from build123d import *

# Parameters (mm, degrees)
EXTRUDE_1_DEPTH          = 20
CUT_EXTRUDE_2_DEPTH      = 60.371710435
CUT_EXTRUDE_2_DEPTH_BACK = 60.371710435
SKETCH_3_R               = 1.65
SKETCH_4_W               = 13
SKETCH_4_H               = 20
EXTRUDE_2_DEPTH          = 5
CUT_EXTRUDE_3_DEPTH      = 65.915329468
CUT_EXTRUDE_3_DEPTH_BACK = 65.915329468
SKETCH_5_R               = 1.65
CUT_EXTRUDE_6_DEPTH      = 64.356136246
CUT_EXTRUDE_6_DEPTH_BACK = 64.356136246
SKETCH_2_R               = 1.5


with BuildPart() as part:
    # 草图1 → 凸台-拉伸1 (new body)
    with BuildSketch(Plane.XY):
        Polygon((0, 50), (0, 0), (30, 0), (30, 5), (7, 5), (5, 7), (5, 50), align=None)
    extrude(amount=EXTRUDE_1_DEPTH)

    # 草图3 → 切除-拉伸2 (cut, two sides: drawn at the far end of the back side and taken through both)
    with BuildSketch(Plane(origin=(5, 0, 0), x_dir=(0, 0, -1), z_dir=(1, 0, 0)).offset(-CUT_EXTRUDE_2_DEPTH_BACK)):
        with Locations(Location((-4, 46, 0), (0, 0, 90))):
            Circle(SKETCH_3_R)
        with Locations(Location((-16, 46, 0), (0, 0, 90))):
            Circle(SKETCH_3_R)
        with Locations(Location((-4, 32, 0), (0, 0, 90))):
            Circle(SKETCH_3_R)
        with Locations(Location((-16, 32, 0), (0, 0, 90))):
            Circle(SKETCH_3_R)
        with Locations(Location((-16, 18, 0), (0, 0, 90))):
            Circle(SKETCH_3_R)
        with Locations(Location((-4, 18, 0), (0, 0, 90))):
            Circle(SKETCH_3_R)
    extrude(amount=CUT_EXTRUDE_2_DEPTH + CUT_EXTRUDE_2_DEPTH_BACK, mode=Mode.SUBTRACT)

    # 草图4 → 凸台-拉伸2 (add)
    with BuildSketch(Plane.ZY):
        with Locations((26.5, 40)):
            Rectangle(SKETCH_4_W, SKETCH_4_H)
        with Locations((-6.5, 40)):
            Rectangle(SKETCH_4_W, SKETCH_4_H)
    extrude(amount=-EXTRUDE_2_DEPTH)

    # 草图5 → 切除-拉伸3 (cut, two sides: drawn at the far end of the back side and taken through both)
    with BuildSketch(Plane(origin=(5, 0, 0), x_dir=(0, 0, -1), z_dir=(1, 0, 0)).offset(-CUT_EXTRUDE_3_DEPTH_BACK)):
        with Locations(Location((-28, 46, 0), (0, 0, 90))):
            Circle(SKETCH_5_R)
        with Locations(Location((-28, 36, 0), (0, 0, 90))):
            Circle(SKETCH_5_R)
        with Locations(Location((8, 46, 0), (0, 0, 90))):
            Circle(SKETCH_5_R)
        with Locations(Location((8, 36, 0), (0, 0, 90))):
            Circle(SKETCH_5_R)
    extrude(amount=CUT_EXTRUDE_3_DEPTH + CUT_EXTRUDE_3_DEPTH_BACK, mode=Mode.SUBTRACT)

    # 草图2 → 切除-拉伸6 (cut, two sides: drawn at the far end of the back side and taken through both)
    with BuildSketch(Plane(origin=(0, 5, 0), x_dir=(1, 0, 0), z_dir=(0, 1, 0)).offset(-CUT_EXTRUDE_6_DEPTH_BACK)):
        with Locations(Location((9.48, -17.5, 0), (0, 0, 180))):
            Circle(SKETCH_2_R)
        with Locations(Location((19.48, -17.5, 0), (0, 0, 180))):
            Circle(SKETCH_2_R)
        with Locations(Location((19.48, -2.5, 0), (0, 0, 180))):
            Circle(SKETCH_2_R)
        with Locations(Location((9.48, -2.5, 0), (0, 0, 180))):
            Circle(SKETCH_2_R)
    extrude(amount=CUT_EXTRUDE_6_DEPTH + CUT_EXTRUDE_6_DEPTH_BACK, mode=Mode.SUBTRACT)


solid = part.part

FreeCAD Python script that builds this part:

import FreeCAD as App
import Part
import Sketcher
from FreeCAD import Vector
Q = App.Units.Quantity


def add_polygon(sketch, points):
    """Adds a closed chain of lines whose ends are joined by coincident constraints."""
    first, n = sketch.GeometryCount, len(points)
    for a, b in zip(points, points[1:] + points[:1]):
        sketch.addGeometry(Part.LineSegment(App.Vector(*a, 0), App.Vector(*b, 0)), False)
    for i in range(n):
        sketch.addConstraint(Sketcher.Constraint("Coincident", first + i, 2, first + (i + 1) % n, 1))

doc = App.newDocument("Part")
params = doc.addObject("Spreadsheet::Sheet", "Params")
for row, (alias, value) in enumerate([
    ("sketch1_width", "30 mm"),
    ("sketch1_width2", "23 mm"),
    ("sketch1_width3", "5 mm"),
    ("sketch1_height", "50 mm"),
    ("sketch1_height2", "43 mm"),
    ("pad1_length", "20 mm"),
    ("sketch2_diameter", "3.3 mm"),
    ("sketch3_width", "20 mm"),
    ("sketch3_height", "13 mm"),
    ("pad2_length", "5 mm"),
    ("sketch4_diameter", "3.3 mm"),
    ("sketch5_diameter", "3 mm"),
], start=1):
    params.set(f"A{row}", alias)
    params.set(f"B{row}", "=" + value)
    params.setAlias(f"B{row}", alias)

body = doc.addObject("PartDesign::Body", "Body")

# Sketch on XY plane
sketch1 = body.newObject("Sketcher::SketchObject", "Sketch")
sketch1.AttachmentSupport = (doc.getObject("XY_Plane"), [""])
sketch1.MapMode = "FlatFace"
add_polygon(sketch1, [(0, 50), (0, 0), (30, 0), (30, 5), (7, 5), (5, 7), (5, 50)])  # lines 0-6
sketch1.addConstraint([
    Sketcher.Constraint("Vertical", 0),
    Sketcher.Constraint("Horizontal", 1),
    Sketcher.Constraint("Vertical", 2),
    Sketcher.Constraint("Horizontal", 3),
    Sketcher.Constraint("Vertical", 5),
    Sketcher.Constraint("Horizontal", 6),
    Sketcher.Constraint("Coincident", 0, 2, -1, 1),
    Sketcher.Constraint("Equal", 6, 2),
    Sketcher.Constraint("DistanceX", 1, 1, 1, 2, Q("30 mm")),
    Sketcher.Constraint("DistanceX", 3, 2, 3, 1, Q("23 mm")),
    Sketcher.Constraint("DistanceX", 6, 2, 6, 1, Q("5 mm")),
    Sketcher.Constraint("DistanceY", 0, 2, 0, 1, Q("50 mm")),
    Sketcher.Constraint("DistanceY", 5, 1, 5, 2, Q("43 mm")),
])
sketch1.setExpression("Constraints[15]", "Params.sketch1_width")
sketch1.setExpression("Constraints[16]", "Params.sketch1_width2")
sketch1.setExpression("Constraints[17]", "Params.sketch1_width3")
sketch1.setExpression("Constraints[18]", "Params.sketch1_height")
sketch1.setExpression("Constraints[19]", "Params.sketch1_height2")
pad1 = body.newObject("PartDesign::Pad", "Pad")
pad1.Profile = sketch1
pad1.setExpression("Length", "Params.pad1_length")

# Sketch on YZ plane
sketch2 = body.newObject("Sketcher::SketchObject", "Sketch001")
sketch2.AttachmentSupport = (doc.getObject("YZ_Plane"), [""])
sketch2.MapMode = "FlatFace"
sketch2.AttachmentOffset = App.Placement(Vector(0, 0, 5), App.Rotation())
sketch2.addGeometry([
    Part.Circle(Vector(46, 4, 0), Vector(0, 0, 1), 1.6),  # 0
    Part.Circle(Vector(46, 16, 0), Vector(0, 0, 1), 1.6),  # 1
    Part.Circle(Vector(32, 4, 0), Vector(0, 0, 1), 1.6),  # 2
    Part.Circle(Vector(32, 16, 0), Vector(0, 0, 1), 1.6),  # 3
    Part.Circle(Vector(18, 16, 0), Vector(0, 0, 1), 1.6),  # 4
    Part.Circle(Vector(18, 4, 0), Vector(0, 0, 1), 1.6),  # 5
], False)
sketch2.addConstraint([
    Sketcher.Constraint("Equal", 0, 1),
    Sketcher.Constraint("Equal", 1, 2),
    Sketcher.Constraint("Equal", 2, 3),
    Sketcher.Constraint("Equal", 3, 4),
    Sketcher.Constraint("Equal", 4, 5),
    Sketcher.Constraint("Horizontal", 0, 3, 2, 3),
    Sketcher.Constraint("Horizontal", 1, 3, 3, 3),
    Sketcher.Constraint("Horizontal", 3, 3, 4, 3),
    Sketcher.Constraint("Horizontal", 2, 3, 5, 3),
    Sketcher.Constraint("Vertical", 0, 3, 1, 3),
    Sketcher.Constraint("Vertical", 2, 3, 3, 3),
    Sketcher.Constraint("Vertical", 4, 3, 5, 3),
    Sketcher.Constraint("Diameter", 0, Q("3.3 mm")),
    Sketcher.Constraint("DistanceX", -1, 1, 0, 3, Q("46 mm")),
    Sketcher.Constraint("DistanceY", -1, 1, 0, 3, Q("4 mm")),
    Sketcher.Constraint("DistanceY", -1, 1, 1, 3, Q("16 mm")),
    Sketcher.Constraint("DistanceX", -1, 1, 2, 3, Q("32 mm")),
    Sketcher.Constraint("DistanceX", -1, 1, 4, 3, Q("18 mm")),
])
sketch2.setExpression("Constraints[12]", "Params.sketch2_diameter")
pocket1 = body.newObject("PartDesign::Pocket", "Pocket")
pocket1.Profile = sketch2
pocket1.Type = "ThroughAll"
pocket1.Midplane = True

# Sketch on YZ plane
sketch3 = body.newObject("Sketcher::SketchObject", "Sketch002")
sketch3.AttachmentSupport = (doc.getObject("YZ_Plane"), [""])
sketch3.MapMode = "FlatFace"
add_polygon(sketch3, [(50, 20), (30, 20), (30, 33), (50, 33)])  # lines 0-3
add_polygon(sketch3, [(50, -13), (30, -13), (30, 0), (50, 0)])  # lines 4-7
sketch3.addConstraint([
    Sketcher.Constraint("Horizontal", 0),
    Sketcher.Constraint("Vertical", 1),
    Sketcher.Constraint("Horizontal", 2),
    Sketcher.Constraint("Vertical", 3),
    Sketcher.Constraint("Horizontal", 4),
    Sketcher.Constraint("Vertical", 5),
    Sketcher.Constraint("Horizontal", 6),
    Sketcher.Constraint("Vertical", 7),
    Sketcher.Constraint("PointOnObject", 5, 2, -1),
    Sketcher.Constraint("Vertical", 1, 2, 4, 2),
    Sketcher.Constraint("Vertical", 3, 2, 6, 2),
    Sketcher.Constraint("Equal", 3, 5),
    Sketcher.Constraint("DistanceX", 0, 2, 0, 1, Q("20 mm")),
    Sketcher.Constraint("DistanceY", 1, 1, 1, 2, Q("13 mm")),
    Sketcher.Constraint("DistanceX", -1, 1, 0, 2, Q("30 mm")),
    Sketcher.Constraint("DistanceY", -1, 1, 0, 2, Q("20 mm")),
])
sketch3.setExpression("Constraints[20]", "Params.sketch3_width")
sketch3.setExpression("Constraints[21]", "Params.sketch3_height")
pad2 = body.newObject("PartDesign::Pad", "Pad001")
pad2.Profile = sketch3
pad2.setExpression("Length", "Params.pad2_length")

# Sketch on YZ plane
sketch4 = body.newObject("Sketcher::SketchObject", "Sketch003")
sketch4.AttachmentSupport = (doc.getObject("YZ_Plane"), [""])
sketch4.MapMode = "FlatFace"
sketch4.AttachmentOffset = App.Placement(Vector(0, 0, 5), App.Rotation())
sketch4.addGeometry([
    Part.Circle(Vector(46, 28, 0), Vector(0, 0, 1), 1.6),
    Part.Circle(Vector(36, 28, 0), Vector(0, 0, 1), 1.6),
    Part.Circle(Vector(46, -8, 0), Vector(0, 0, 1), 1.6),
    Part.Circle(Vector(36, -8, 0), Vector(0, 0, 1), 1.6),
], False)
sketch4.addConstraint([
    Sketcher.Constraint("Equal", 0, 1),
    Sketcher.Constraint("Equal", 1, 2),
    Sketcher.Constraint("Equal", 2, 3),
    Sketcher.Constraint("Horizontal", 0, 3, 1, 3),
    Sketcher.Constraint("Horizontal", 2, 3, 3, 3),
    Sketcher.Constraint("Vertical", 0, 3, 2, 3),
    Sketcher.Constraint("Vertical", 1, 3, 3, 3),
    Sketcher.Constraint("Diameter", 0, Q("3.3 mm")),
    Sketcher.Constraint("DistanceX", -1, 1, 0, 3, Q("46 mm")),
    Sketcher.Constraint("DistanceY", -1, 1, 0, 3, Q("28 mm")),
    Sketcher.Constraint("DistanceX", -1, 1, 1, 3, Q("36 mm")),
    Sketcher.Constraint("DistanceY", 2, 3, -1, 1, Q("8 mm")),
])
sketch4.setExpression("Constraints[7]", "Params.sketch4_diameter")
pocket2 = body.newObject("PartDesign::Pocket", "Pocket001")
pocket2.Profile = sketch4
pocket2.Type = "ThroughAll"
pocket2.Midplane = True

# Sketch on XZ plane
sketch5 = body.newObject("Sketcher::SketchObject", "Sketch004")
sketch5.AttachmentSupport = (doc.getObject("XZ_Plane"), [""])
sketch5.MapMode = "FlatFace"
sketch5.AttachmentOffset = App.Placement(Vector(0, 0, -5), App.Rotation())
sketch5.addGeometry([
    Part.Circle(Vector(9.5, 17.5, 0), Vector(0, 0, 1), 1.5),
    Part.Circle(Vector(19.5, 17.5, 0), Vector(0, 0, 1), 1.5),
    Part.Circle(Vector(19.5, 2.5, 0), Vector(0, 0, 1), 1.5),
    Part.Circle(Vector(9.5, 2.5, 0), Vector(0, 0, 1), 1.5),
], False)
sketch5.addConstraint([
    Sketcher.Constraint("Equal", 0, 1),
    Sketcher.Constraint("Equal", 1, 2),
    Sketcher.Constraint("Equal", 2, 3),
    Sketcher.Constraint("Horizontal", 0, 3, 1, 3),
    Sketcher.Constraint("Horizontal", 2, 3, 3, 3),
    Sketcher.Constraint("Vertical", 1, 3, 2, 3),
    Sketcher.Constraint("Vertical", 0, 3, 3, 3),
    Sketcher.Constraint("Diameter", 0, Q("3 mm")),
    Sketcher.Constraint("DistanceX", 0, 3, 1, 3, Q("10 mm")),
    Sketcher.Constraint("DistanceY", 2, 3, 1, 3, Q("15 mm")),
    Sketcher.Constraint("DistanceY", -1, 1, 0, 3, Q("17.5 mm")),
    Sketcher.Constraint("DistanceX", -1, 1, 0, 3, Q("9.48 mm")),
])
sketch5.setExpression("Constraints[7]", "Params.sketch5_diameter")
pocket3 = body.newObject("PartDesign::Pocket", "Pocket002")
pocket3.Profile = sketch5
pocket3.Type = "ThroughAll"
pocket3.Midplane = True

doc.recompute()
